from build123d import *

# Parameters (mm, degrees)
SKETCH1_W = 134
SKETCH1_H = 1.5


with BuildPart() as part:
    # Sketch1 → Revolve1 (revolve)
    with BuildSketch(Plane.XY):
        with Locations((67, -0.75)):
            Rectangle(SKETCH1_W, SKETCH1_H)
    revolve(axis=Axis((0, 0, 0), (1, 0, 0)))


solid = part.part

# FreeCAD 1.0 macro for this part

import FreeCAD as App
import Part
import Sketcher


def add_polygon(sketch, points):
    """Adds a closed chain of lines whose ends are joined by coincident constraints."""
    first, n = sketch.GeometryCount, len(points)
    for a, b in zip(points, points[1:] + points[:1]):
        sketch.addGeometry(Part.LineSegment(App.Vector(*a, 0), App.Vector(*b, 0)), False)
    for i in range(n):
        sketch.addConstraint(Sketcher.Constraint("Coincident", first + i, 2, first + (i + 1) % n, 1))

doc = App.newDocument("Part")
body = doc.addObject("PartDesign::Body", "Body")

# Sketch on XY plane
sketch1 = body.newObject("Sketcher::SketchObject", "Sketch")
sketch1.AttachmentSupport = (doc.getObject("XY_Plane"), [""])
sketch1.MapMode = "FlatFace"
add_polygon(sketch1, [(0, 0), (0, -1.5), (134, -1.5), (134, 0)])  # lines 0-3
sketch1.addConstraint(Sketcher.Constraint("Vertical", 0))
sketch1.addConstraint(Sketcher.Constraint("Horizontal", 1))
sketch1.addConstraint(Sketcher.Constraint("Vertical", 2))
sketch1.addConstraint(Sketcher.Constraint("Horizontal", 3))
sketch1.addConstraint(Sketcher.Constraint("Coincident", 3, 2, -1, 1))
sketch1.addConstraint(Sketcher.Constraint("DistanceX", 1, 1, 1, 2, 134.0))
sketch1.addConstraint(Sketcher.Constraint("DistanceY", 0, 2, 0, 1, 1.5))
revolution = body.newObject("PartDesign::Revolution", "Revolution")
revolution.Profile = sketch1
revolution.ReferenceAxis = (sketch1, ["H_Axis"])
revolution.Angle = 360

doc.recompute()
